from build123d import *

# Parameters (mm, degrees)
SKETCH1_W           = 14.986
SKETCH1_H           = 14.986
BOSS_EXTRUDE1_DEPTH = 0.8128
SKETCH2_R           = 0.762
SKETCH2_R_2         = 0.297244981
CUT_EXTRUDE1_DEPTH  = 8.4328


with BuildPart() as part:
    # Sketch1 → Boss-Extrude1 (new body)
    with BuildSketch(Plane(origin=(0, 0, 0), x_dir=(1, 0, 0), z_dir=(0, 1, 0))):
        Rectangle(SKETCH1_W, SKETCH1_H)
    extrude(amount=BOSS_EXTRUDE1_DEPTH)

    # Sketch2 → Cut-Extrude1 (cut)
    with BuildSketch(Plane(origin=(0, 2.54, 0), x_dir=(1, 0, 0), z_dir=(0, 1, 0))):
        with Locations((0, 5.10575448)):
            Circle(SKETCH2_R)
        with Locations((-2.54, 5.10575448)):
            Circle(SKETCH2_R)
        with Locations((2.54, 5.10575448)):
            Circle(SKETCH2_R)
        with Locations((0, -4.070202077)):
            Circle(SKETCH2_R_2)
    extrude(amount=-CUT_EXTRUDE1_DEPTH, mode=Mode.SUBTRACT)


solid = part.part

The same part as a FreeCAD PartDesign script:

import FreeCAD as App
import Part
import Sketcher
from FreeCAD import Vector
Q = App.Units.Quantity


def add_polygon(sketch, points):
    """Adds a closed chain of lines whose ends are joined by coincident constraints."""
    first, n = sketch.GeometryCount, len(points)
    for a, b in zip(points, points[1:] + points[:1]):
        sketch.addGeometry(Part.LineSegment(App.Vector(*a, 0), App.Vector(*b, 0)), False)
    for i in range(n):
        sketch.addConstraint(Sketcher.Constraint("Coincident", first + i, 2, first + (i + 1) % n, 1))

doc = App.newDocument("Part")
body = doc.addObject("PartDesign::Body", "Body")

sketch1 = doc.addObject("Sketcher::SketchObject", "Sketch")
body.addObject(sketch1)
sketch1.AttachmentSupport = (doc.XZ_Plane, [""])
sketch1.MapMode = "FlatFace"
add_polygon(sketch1, [(-7, -7), (-7, 7), (7, 7), (7, -7)])
sketch1.addConstraint([
    Sketcher.Constraint("Vertical", 0),
    Sketcher.Constraint("Horizontal", 1),
    Sketcher.Constraint("Vertical", 2),
    Sketcher.Constraint("Horizontal", 3),
    Sketcher.Constraint("Symmetric", 0, 2, 2, 2, -1, 1),
    Sketcher.Constraint("Equal", 3, 0),
    Sketcher.Constraint("DistanceX", 1, 1, 1, 2, Q("0.59 in")),
])
pad1 = doc.addObject("PartDesign::Pad", "Pad")
body.addObject(pad1)
pad1.Profile = sketch1
pad1.Length = Q("0.032 in")
pad1.Reversed = True

sketch2 = doc.addObject("Sketcher::SketchObject", "Sketch001")
body.addObject(sketch2)
sketch2.AttachmentSupport = (doc.XZ_Plane, [""])
sketch2.MapMode = "FlatFace"
sketch2.AttachmentOffset = App.Placement(Vector(0, 0, -0.1 * 25.4), App.Rotation())
sketch2.addGeometry([
    Part.Circle(Vector(0, -5.11, 0), Vector(0, 0, 1), 0.76),
    Part.Circle(Vector(-2.54, -5.11, 0), Vector(0, 0, 1), 0.76),
    Part.Circle(Vector(2.54, -5.11, 0), Vector(0, 0, 1), 0.76),
    Part.Circle(Vector(0, 4.07, 0), Vector(0, 0, 1), 0.3),
], False)
sketch2.addConstraint([
    Sketcher.Constraint("Equal", 0, 1),
    Sketcher.Constraint("Equal", 1, 2),
    Sketcher.Constraint("Symmetric", 1, 3, 2, 3, -2),
    Sketcher.Constraint("PointOnObject", 0, 3, -2),
    Sketcher.Constraint("PointOnObject", 3, 3, -2),
    Sketcher.Constraint("Horizontal", 0, 3, 1, 3),
    Sketcher.Constraint("Diameter", 0, Q("0.06 in")),
    Sketcher.Constraint("DistanceX", 1, 3, -1, 1, Q("0.1 in")),
    Sketcher.Constraint("Diameter", 3, 0.59449),
    Sketcher.Constraint("DistanceY", 0, 3, -1, 1, 5.105754),
    Sketcher.Constraint("DistanceY", -1, 1, 3, 3, 4.070202),
])
pocket1 = doc.addObject("PartDesign::Pocket", "Pocket")
body.addObject(pocket1)
pocket1.Profile = sketch2
pocket1.Length = Q("0.332 in")
pocket1.Reversed = True

doc.recompute()
